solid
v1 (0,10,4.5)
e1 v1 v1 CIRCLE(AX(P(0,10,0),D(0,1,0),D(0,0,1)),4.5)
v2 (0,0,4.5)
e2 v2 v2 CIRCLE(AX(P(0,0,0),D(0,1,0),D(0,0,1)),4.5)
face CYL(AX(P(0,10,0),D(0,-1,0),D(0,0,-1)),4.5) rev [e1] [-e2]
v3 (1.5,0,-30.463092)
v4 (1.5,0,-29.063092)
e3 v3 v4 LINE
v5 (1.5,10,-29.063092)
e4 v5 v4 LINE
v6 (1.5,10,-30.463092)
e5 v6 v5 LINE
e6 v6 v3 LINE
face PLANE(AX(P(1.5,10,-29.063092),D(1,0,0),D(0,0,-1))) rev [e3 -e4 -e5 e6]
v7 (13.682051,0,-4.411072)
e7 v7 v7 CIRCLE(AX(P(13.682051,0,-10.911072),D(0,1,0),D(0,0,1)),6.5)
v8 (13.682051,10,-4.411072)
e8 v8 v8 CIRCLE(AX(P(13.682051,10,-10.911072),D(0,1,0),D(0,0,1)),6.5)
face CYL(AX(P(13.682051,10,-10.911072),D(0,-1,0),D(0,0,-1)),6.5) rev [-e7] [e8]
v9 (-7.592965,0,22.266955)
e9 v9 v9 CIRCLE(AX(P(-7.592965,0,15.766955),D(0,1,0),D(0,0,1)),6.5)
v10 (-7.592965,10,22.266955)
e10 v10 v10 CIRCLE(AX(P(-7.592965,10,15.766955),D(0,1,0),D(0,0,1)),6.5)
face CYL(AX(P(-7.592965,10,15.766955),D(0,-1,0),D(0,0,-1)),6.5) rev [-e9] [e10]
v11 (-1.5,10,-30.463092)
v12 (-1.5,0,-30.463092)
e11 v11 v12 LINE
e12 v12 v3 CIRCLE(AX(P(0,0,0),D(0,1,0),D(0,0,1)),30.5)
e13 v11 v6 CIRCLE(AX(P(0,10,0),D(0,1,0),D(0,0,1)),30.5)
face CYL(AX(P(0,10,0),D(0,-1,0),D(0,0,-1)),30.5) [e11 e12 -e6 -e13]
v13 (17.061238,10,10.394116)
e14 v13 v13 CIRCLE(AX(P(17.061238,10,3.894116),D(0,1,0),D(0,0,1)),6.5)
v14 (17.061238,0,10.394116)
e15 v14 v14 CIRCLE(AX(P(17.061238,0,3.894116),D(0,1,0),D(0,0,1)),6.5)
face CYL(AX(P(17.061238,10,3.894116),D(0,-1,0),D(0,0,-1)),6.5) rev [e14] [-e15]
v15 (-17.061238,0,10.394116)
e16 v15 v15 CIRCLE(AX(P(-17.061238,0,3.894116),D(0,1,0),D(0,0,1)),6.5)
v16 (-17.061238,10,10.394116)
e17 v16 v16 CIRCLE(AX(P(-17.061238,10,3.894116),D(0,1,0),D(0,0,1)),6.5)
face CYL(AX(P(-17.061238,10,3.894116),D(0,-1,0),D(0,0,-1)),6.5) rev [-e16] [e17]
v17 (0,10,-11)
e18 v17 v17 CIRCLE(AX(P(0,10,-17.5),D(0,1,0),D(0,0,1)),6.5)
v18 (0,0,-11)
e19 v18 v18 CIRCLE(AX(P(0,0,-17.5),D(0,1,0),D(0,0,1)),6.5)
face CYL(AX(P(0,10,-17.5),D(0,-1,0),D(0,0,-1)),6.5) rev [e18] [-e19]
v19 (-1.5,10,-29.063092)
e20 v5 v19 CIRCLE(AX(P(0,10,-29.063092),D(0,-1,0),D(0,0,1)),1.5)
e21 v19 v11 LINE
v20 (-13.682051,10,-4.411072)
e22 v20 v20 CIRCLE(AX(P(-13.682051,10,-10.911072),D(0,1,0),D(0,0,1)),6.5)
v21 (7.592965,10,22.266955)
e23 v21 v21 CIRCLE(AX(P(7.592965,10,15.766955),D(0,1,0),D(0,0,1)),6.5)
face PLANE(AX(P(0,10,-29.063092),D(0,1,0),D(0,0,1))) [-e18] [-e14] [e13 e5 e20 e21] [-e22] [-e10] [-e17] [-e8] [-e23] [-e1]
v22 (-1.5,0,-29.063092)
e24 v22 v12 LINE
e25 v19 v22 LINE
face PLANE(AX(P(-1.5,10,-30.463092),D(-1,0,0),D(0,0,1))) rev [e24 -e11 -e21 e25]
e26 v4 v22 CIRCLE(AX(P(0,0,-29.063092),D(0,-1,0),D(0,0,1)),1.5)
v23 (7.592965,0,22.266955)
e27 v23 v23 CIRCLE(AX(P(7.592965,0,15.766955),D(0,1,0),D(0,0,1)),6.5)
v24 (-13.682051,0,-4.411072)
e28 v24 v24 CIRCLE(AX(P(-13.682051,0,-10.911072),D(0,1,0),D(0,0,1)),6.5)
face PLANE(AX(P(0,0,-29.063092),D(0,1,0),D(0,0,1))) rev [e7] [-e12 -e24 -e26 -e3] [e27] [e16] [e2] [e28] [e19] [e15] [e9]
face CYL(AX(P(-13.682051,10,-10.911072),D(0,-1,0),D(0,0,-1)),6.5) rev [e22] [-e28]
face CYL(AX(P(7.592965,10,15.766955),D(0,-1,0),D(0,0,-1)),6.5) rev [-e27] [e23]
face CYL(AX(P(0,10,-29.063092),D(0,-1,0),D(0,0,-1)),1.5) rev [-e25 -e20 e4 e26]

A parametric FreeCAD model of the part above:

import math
import FreeCAD as App
import Part
import Sketcher
from FreeCAD import Vector

doc = App.newDocument("Part")
params = doc.addObject("Spreadsheet::Sheet", "Params")
for row, (alias, value) in enumerate([
    ("sketch1_diameter", "13 mm"),
    ("sketch1_diameter2", "9 mm"),
    ("sketch1_radius", "30.5 mm"),
    ("sketch1_radius2", "1.5 mm"),
    ("sketch1_height", "1.4 mm"),
    ("pad1_length", "10 mm"),
], start=1):
    params.set(f"A{row}", alias)
    params.set(f"B{row}", "=" + value)
    params.setAlias(f"B{row}", alias)

body = doc.addObject("PartDesign::Body", "Body")

sketch1 = body.newObject("Sketcher::SketchObject", "Sketch")
sketch1.AttachmentSupport = (doc.getObject("XZ_Plane"), [""])
sketch1.MapMode = "FlatFace"
sketch1.addGeometry([
    Part.LineSegment(Vector(-1.5, -29.063092, 0), Vector(-1.5, -30.463092, 0)),
    Part.ArcOfCircle(Part.Circle(Vector(0, 0, 0), Vector(0, 0, 1), 30.5), math.radians(-87.181038), math.radians(267.181038)),
    Part.LineSegment(Vector(1.5, -30.463092, 0), Vector(1.5, -29.063092, 0)),
    Part.ArcOfCircle(Part.Circle(Vector(0, -29.063092, 0), Vector(0, 0, 1), 1.5), math.radians(0), math.radians(180)),
    Part.Circle(Vector(7.592965, 15.766955, 0), Vector(0, 0, 1), 6.5),
    Part.Circle(Vector(17.061238, 3.894116, 0), Vector(0, 0, 1), 6.5),
    Part.Circle(Vector(-7.592965, 15.766955, 0), Vector(0, 0, 1), 6.5),
    Part.Circle(Vector(0, 0, 0), Vector(0, 0, 1), 4.5),
    Part.Circle(Vector(-17.061238, 3.894116, 0), Vector(0, 0, 1), 6.5),
    Part.Circle(Vector(13.682051, -10.911072, 0), Vector(0, 0, 1), 6.5),
    Part.Circle(Vector(-13.682051, -10.911072, 0), Vector(0, 0, 1), 6.5),
    Part.Circle(Vector(0, -17.5, 0), Vector(0, 0, 1), 6.5),
], False)
sketch1.addConstraint([
    Sketcher.Constraint("Coincident", 0, 2, 1, 2),
    Sketcher.Constraint("Coincident", 1, 1, 2, 1),
    Sketcher.Constraint("Tangent", 2, 2, 3, 1),
    Sketcher.Constraint("Tangent", 3, 2, 0, 1),
    Sketcher.Constraint("Vertical", 0),
    Sketcher.Constraint("Vertical", 2),
    Sketcher.Constraint("Coincident", 1, 3, -1, 1),
    Sketcher.Constraint("Coincident", 7, 3, -1, 1),
    Sketcher.Constraint("Equal", 4, 5),
    Sketcher.Constraint("Equal", 5, 6),
    Sketcher.Constraint("Equal", 6, 8),
    Sketcher.Constraint("Equal", 8, 9),
    Sketcher.Constraint("Equal", 9, 10),
    Sketcher.Constraint("Equal", 10, 11),
    Sketcher.Constraint("Symmetric", 4, 3, 6, 3, -2),
    Sketcher.Constraint("Symmetric", 5, 3, 8, 3, -2),
    Sketcher.Constraint("Symmetric", 9, 3, 10, 3, -2),
    Sketcher.Constraint("PointOnObject", 3, 3, -2),
    Sketcher.Constraint("PointOnObject", 11, 3, -2),
    Sketcher.Constraint("Diameter", 4, 13.0),
    Sketcher.Constraint("Diameter", 7, 9.0),
    Sketcher.Constraint("Radius", 1, 30.5),
    Sketcher.Constraint("Radius", 3, 1.5),
    Sketcher.Constraint("DistanceY", 0, 2, 0, 1, 1.4),
    Sketcher.Constraint("DistanceY", 11, 3, -1, 1, 17.5),
    Sketcher.Constraint("DistanceX", 10, 3, 9, 3, 27.364102),
    Sketcher.Constraint("DistanceX", -1, 1, 5, 3, 17.061238),
    Sketcher.Constraint("DistanceY", 9, 3, -1, 1, 10.911072),
    Sketcher.Constraint("DistanceY", 5, 3, 4, 3, 11.872839),
    Sketcher.Constraint("DistanceY", 3, 3, 5, 3, 32.957209),
    Sketcher.Constraint("DistanceX", 6, 3, 4, 3, 15.185931),
])
sketch1.setExpression("Constraints[19]", "Params.sketch1_diameter")
sketch1.setExpression("Constraints[20]", "Params.sketch1_diameter2")
sketch1.setExpression("Constraints[21]", "Params.sketch1_radius")
sketch1.setExpression("Constraints[22]", "Params.sketch1_radius2")
sketch1.setExpression("Constraints[23]", "Params.sketch1_height")
pad1 = body.newObject("PartDesign::Pad", "Pad")
pad1.Profile = sketch1
pad1.setExpression("Length", "Params.pad1_length")
pad1.Reversed = True

doc.recompute()
